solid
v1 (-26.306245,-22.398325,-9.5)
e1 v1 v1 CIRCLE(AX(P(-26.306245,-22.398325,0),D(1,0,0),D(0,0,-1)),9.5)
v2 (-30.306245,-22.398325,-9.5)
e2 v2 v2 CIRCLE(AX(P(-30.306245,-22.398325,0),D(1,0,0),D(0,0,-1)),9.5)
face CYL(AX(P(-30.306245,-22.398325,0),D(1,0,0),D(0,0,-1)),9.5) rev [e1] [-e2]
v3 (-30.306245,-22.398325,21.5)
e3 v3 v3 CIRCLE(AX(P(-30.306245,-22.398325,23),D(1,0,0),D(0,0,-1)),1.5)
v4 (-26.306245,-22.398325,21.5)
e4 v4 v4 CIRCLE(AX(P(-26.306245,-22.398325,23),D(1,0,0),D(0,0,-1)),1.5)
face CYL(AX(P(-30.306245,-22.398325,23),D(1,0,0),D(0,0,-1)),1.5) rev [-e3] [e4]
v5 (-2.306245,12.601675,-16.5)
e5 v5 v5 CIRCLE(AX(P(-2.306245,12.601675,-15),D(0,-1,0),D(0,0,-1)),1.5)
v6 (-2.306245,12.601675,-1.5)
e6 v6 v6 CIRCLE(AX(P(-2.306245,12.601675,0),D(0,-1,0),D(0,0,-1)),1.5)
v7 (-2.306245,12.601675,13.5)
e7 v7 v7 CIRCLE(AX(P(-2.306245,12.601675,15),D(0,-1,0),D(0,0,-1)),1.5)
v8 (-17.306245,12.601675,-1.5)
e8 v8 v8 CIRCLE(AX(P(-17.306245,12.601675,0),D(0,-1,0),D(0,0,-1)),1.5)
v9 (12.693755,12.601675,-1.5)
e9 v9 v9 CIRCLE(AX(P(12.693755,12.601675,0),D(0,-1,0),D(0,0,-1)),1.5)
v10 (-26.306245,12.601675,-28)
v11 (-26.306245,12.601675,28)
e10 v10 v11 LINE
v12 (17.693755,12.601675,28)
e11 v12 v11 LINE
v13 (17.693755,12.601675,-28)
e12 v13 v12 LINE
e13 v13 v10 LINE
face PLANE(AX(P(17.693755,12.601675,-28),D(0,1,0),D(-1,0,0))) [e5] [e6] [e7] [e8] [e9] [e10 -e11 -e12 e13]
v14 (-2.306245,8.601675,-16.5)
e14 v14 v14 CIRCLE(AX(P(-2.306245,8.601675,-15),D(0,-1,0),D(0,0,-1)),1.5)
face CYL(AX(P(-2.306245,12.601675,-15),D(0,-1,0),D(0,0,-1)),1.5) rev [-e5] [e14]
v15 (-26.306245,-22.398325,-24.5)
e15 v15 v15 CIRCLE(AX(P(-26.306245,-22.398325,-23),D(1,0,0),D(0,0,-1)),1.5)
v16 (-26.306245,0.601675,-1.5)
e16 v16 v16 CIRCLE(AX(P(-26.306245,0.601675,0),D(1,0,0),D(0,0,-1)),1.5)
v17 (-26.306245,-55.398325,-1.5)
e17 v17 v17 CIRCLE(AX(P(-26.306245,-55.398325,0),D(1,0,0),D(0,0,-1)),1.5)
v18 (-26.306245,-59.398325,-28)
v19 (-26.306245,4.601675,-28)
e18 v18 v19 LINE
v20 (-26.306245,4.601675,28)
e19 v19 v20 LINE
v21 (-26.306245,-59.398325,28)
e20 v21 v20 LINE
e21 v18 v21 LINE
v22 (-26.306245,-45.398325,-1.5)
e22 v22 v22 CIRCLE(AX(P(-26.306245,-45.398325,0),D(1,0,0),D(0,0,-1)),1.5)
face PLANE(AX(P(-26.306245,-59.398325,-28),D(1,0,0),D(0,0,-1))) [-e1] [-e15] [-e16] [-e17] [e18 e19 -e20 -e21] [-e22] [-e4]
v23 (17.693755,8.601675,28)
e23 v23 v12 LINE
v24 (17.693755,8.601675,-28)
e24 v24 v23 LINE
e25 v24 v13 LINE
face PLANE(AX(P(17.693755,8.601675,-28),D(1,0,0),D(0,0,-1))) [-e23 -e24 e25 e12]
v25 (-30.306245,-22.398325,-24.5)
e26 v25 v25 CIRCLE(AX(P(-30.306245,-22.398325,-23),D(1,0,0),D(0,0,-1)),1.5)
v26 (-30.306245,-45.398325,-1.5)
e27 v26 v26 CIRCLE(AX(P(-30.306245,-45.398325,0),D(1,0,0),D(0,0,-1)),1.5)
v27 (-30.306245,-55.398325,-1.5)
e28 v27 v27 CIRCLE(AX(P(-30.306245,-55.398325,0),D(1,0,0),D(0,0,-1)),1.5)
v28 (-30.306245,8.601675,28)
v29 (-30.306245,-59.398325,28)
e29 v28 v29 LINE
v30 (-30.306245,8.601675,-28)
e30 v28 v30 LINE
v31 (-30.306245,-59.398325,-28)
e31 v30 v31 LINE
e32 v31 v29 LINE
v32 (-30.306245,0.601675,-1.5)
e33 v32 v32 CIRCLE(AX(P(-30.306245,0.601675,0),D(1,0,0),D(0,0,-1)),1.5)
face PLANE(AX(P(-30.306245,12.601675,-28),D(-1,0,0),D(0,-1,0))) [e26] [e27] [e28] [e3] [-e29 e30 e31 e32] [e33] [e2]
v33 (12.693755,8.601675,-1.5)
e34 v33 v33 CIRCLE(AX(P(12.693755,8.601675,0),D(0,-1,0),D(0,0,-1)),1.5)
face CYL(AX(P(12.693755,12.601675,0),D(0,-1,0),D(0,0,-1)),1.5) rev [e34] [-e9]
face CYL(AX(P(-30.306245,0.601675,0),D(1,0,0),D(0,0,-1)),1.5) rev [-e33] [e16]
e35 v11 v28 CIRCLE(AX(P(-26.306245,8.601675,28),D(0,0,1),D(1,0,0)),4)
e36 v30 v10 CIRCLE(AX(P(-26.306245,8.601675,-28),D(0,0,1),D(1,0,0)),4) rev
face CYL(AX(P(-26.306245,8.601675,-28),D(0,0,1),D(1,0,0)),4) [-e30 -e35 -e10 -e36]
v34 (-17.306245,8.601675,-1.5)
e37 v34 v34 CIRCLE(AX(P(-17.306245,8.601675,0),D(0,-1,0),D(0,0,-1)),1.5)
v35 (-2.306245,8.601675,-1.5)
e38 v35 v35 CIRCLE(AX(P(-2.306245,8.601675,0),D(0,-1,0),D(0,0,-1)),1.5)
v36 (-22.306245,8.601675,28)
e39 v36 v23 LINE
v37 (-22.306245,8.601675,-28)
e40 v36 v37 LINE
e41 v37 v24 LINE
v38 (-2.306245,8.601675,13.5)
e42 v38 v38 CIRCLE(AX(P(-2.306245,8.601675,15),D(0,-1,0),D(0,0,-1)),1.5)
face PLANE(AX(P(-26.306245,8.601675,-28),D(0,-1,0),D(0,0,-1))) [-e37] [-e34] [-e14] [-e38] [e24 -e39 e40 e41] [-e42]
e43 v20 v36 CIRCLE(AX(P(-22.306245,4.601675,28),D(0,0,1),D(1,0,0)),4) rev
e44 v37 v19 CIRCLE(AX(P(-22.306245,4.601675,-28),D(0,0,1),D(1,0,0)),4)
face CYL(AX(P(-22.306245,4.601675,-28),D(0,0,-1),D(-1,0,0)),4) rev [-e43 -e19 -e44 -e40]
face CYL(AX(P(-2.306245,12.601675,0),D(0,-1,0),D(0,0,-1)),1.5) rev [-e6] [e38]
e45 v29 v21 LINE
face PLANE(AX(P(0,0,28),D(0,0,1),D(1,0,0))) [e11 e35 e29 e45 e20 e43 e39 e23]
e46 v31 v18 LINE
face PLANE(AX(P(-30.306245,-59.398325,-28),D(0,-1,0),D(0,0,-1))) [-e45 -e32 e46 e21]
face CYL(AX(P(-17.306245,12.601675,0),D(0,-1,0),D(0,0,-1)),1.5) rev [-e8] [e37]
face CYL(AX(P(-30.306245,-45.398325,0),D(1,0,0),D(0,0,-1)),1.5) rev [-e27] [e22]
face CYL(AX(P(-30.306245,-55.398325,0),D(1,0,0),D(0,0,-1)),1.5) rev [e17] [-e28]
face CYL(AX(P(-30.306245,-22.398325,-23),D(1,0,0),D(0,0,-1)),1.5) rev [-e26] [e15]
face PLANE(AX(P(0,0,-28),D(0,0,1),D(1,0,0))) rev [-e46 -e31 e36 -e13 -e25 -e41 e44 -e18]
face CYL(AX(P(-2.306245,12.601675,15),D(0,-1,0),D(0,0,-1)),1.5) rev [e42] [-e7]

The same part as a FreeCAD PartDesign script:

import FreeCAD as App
import Part
import Sketcher

V = App.Vector


def edges_at(feature, points):
    """Names of the edges that pass closest to the given points."""
    edges = feature.Shape.Edges
    near = lambda p: min(range(len(edges)), key=lambda i: edges[i].distToShape(Part.Vertex(*p))[0])
    return sorted({f"Edge{near(p) + 1}" for p in points})

doc = App.newDocument("Part")
body = doc.addObject("PartDesign::Body", "Body")

# Sketch on XY plane
sketch1 = body.newObject("Sketcher::SketchObject", "Sketch")
sketch1.AttachmentSupport = (doc.getObject("XY_Plane"), [""])
sketch1.MapMode = "FlatFace"
sketch1.addGeometry(Part.LineSegment(V(-30.306245, -59.398325, 0), V(-26.306245, -59.398325, 0)), False)
sketch1.addGeometry(Part.LineSegment(V(-26.306245, -59.398325, 0), V(-26.306245, 8.601675, 0)), False)
sketch1.addGeometry(Part.LineSegment(V(-26.306245, 8.601675, 0), V(17.693755, 8.601675, 0)), False)
sketch1.addGeometry(Part.LineSegment(V(17.693755, 8.601675, 0), V(17.693755, 12.601675, 0)), False)
sketch1.addGeometry(Part.LineSegment(V(17.693755, 12.601675, 0), V(-30.306245, 12.601675, 0)), False)
sketch1.addGeometry(Part.LineSegment(V(-30.306245, 12.601675, 0), V(-30.306245, -59.398325, 0)), False)
sketch1.addConstraint(Sketcher.Constraint("Coincident", 0, 2, 1, 1))
sketch1.addConstraint(Sketcher.Constraint("Coincident", 1, 2, 2, 1))
sketch1.addConstraint(Sketcher.Constraint("Coincident", 2, 2, 3, 1))
sketch1.addConstraint(Sketcher.Constraint("Coincident", 3, 2, 4, 1))
sketch1.addConstraint(Sketcher.Constraint("Coincident", 4, 2, 5, 1))
sketch1.addConstraint(Sketcher.Constraint("Coincident", 5, 2, 0, 1))
sketch1.addConstraint(Sketcher.Constraint("Horizontal", 0))
sketch1.addConstraint(Sketcher.Constraint("Vertical", 1))
sketch1.addConstraint(Sketcher.Constraint("Horizontal", 2))
sketch1.addConstraint(Sketcher.Constraint("Vertical", 3))
sketch1.addConstraint(Sketcher.Constraint("Horizontal", 4))
sketch1.addConstraint(Sketcher.Constraint("Vertical", 5))
sketch1.addConstraint(Sketcher.Constraint("Equal", 0, 3))
sketch1.addConstraint(Sketcher.Constraint("DistanceX", 0, 1, 0, 2, 4.0))
sketch1.addConstraint(Sketcher.Constraint("DistanceX", 2, 1, 2, 2, 44.0))
sketch1.addConstraint(Sketcher.Constraint("DistanceY", 1, 1, 1, 2, 68.0))
sketch1.addConstraint(Sketcher.Constraint("DistanceX", 0, 2, -1, 1, 26.306245))
sketch1.addConstraint(Sketcher.Constraint("DistanceY", 0, 2, -1, 1, 59.398325))
pad1 = body.newObject("PartDesign::Pad", "Pad")
pad1.Profile = sketch1
pad1.Type = "TwoLengths"
pad1.Length = 28
pad1.Length2 = 28

# Sketch on YZ plane
sketch2 = body.newObject("Sketcher::SketchObject", "Sketch001")
sketch2.AttachmentSupport = (doc.getObject("YZ_Plane"), [""])
sketch2.MapMode = "FlatFace"
sketch2.AttachmentOffset = App.Placement(V(0, 0, -26.306245), App.Rotation())
sketch2.addGeometry(Part.Circle(V(-22.398325, 0, 0), V(0, 0, 1), 9.5), False)
sketch2.addGeometry(Part.Circle(V(0.601675, 0, 0), V(0, 0, 1), 1.5), False)
sketch2.addGeometry(Part.Circle(V(-22.398325, -23, 0), V(0, 0, 1), 1.5), False)
sketch2.addGeometry(Part.Circle(V(-45.398325, 0, 0), V(0, 0, 1), 1.5), False)
sketch2.addGeometry(Part.Circle(V(-22.398325, 23, 0), V(0, 0, 1), 1.5), False)
sketch2.addGeometry(Part.Circle(V(-55.398325, 0, 0), V(0, 0, 1), 1.5), False)
sketch2.addConstraint(Sketcher.Constraint("Equal", 1, 2))
sketch2.addConstraint(Sketcher.Constraint("Equal", 2, 3))
sketch2.addConstraint(Sketcher.Constraint("Equal", 3, 4))
sketch2.addConstraint(Sketcher.Constraint("Equal", 4, 5))
sketch2.addConstraint(Sketcher.Constraint("Symmetric", 2, 3, 4, 3, -1))
sketch2.addConstraint(Sketcher.Constraint("PointOnObject", 0, 3, -1))
sketch2.addConstraint(Sketcher.Constraint("PointOnObject", 1, 3, -1))
sketch2.addConstraint(Sketcher.Constraint("PointOnObject", 3, 3, -1))
sketch2.addConstraint(Sketcher.Constraint("PointOnObject", 5, 3, -1))
sketch2.addConstraint(Sketcher.Constraint("Vertical", 0, 3, 2, 3))
sketch2.addConstraint(Sketcher.Constraint("Diameter", 0, 19.0))
sketch2.addConstraint(Sketcher.Constraint("Diameter", 1, 3.0))
sketch2.addConstraint(Sketcher.Constraint("DistanceY", 2, 3, -1, 1, 23.0))
sketch2.addConstraint(Sketcher.Constraint("DistanceX", 0, 3, 1, 3, 23.0))
sketch2.addConstraint(Sketcher.Constraint("DistanceX", 3, 3, 0, 3, 23.0))
sketch2.addConstraint(Sketcher.Constraint("DistanceX", 5, 3, 3, 3, 10.0))
sketch2.addConstraint(Sketcher.Constraint("DistanceX", 0, 3, -1, 1, 22.398325))
pocket1 = body.newObject("PartDesign::Pocket", "Pocket")
pocket1.Profile = sketch2
pocket1.Length = 4
doc.recompute()

fillet = body.newObject("PartDesign::Fillet", "Fillet")
fillet.Base = (pocket1, edges_at(pocket1, [(-30.306, 12.602, 0), (-26.306, 8.602, 0)]))
fillet.Radius = 4

# Sketch on XZ plane
sketch3 = body.newObject("Sketcher::SketchObject", "Sketch002")
sketch3.AttachmentSupport = (doc.getObject("XZ_Plane"), [""])
sketch3.MapMode = "FlatFace"
sketch3.AttachmentOffset = App.Placement(V(0, 0, -8.601675), App.Rotation())
sketch3.addGeometry(Part.Circle(V(-2.306245, 0, 0), V(0, 0, 1), 1.5), False)
sketch3.addGeometry(Part.Circle(V(-17.306245, 0, 0), V(0, 0, 1), 1.5), False)
sketch3.addGeometry(Part.Circle(V(-2.306245, 15, 0), V(0, 0, 1), 1.5), False)
sketch3.addGeometry(Part.Circle(V(12.693755, 0, 0), V(0, 0, 1), 1.5), False)
sketch3.addGeometry(Part.Circle(V(-2.306245, -15, 0), V(0, 0, 1), 1.5), False)
sketch3.addConstraint(Sketcher.Constraint("Equal", 0, 1))
sketch3.addConstraint(Sketcher.Constraint("Equal", 1, 2))
sketch3.addConstraint(Sketcher.Constraint("Equal", 2, 3))
sketch3.addConstraint(Sketcher.Constraint("Equal", 3, 4))
sketch3.addConstraint(Sketcher.Constraint("Symmetric", 2, 3, 4, 3, -1))
sketch3.addConstraint(Sketcher.Constraint("PointOnObject", 0, 3, -1))
sketch3.addConstraint(Sketcher.Constraint("PointOnObject", 1, 3, -1))
sketch3.addConstraint(Sketcher.Constraint("PointOnObject", 3, 3, -1))
sketch3.addConstraint(Sketcher.Constraint("Vertical", 0, 3, 2, 3))
sketch3.addConstraint(Sketcher.Constraint("Diameter", 0, 3.0))
sketch3.addConstraint(Sketcher.Constraint("DistanceY", -1, 1, 2, 3, 15.0))
sketch3.addConstraint(Sketcher.Constraint("DistanceX", 1, 3, 0, 3, 15.0))
sketch3.addConstraint(Sketcher.Constraint("DistanceX", 0, 3, 3, 3, 15.0))
sketch3.addConstraint(Sketcher.Constraint("DistanceX", 0, 3, -1, 1, 2.306245))
pocket2 = body.newObject("PartDesign::Pocket", "Pocket001")
pocket2.Profile = sketch3
pocket2.Length = 4

doc.recompute()
